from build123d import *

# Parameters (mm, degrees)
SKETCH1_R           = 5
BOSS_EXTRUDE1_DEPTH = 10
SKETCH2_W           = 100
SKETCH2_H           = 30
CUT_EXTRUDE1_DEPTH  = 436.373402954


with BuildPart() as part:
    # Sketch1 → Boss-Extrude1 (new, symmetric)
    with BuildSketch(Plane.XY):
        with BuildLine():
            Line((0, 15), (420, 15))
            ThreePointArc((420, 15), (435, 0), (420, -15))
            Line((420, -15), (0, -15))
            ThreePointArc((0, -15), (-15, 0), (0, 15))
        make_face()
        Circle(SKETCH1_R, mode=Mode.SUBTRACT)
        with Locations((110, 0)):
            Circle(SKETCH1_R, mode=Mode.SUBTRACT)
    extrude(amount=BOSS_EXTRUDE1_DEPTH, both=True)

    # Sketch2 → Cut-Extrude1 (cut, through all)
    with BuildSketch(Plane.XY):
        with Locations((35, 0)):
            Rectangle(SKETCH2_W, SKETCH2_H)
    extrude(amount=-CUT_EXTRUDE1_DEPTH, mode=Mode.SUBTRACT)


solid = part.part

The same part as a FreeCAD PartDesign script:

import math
import FreeCAD as App
import Part
import Sketcher

V = App.Vector


def add_polygon(sketch, points):
    """Adds a closed chain of lines whose ends are joined by coincident constraints."""
    first, n = sketch.GeometryCount, len(points)
    for a, b in zip(points, points[1:] + points[:1]):
        sketch.addGeometry(Part.LineSegment(App.Vector(*a, 0), App.Vector(*b, 0)), False)
    for i in range(n):
        sketch.addConstraint(Sketcher.Constraint("Coincident", first + i, 2, first + (i + 1) % n, 1))

doc = App.newDocument("Part")
body = doc.addObject("PartDesign::Body", "Body")

# Sketch on XY plane
sketch1 = body.newObject("Sketcher::SketchObject", "Sketch")
sketch1.AttachmentSupport = (doc.getObject("XY_Plane"), [""])
sketch1.MapMode = "FlatFace"
sketch1.addGeometry(Part.LineSegment(V(420, 15, 0), V(0, 15, 0)), False)
sketch1.addGeometry(Part.ArcOfCircle(Part.Circle(V(0, 0, 0), V(0, 0, 1), 15), math.radians(90), math.radians(270)), False)
sketch1.addGeometry(Part.LineSegment(V(0, -15, 0), V(420, -15, 0)), False)
sketch1.addGeometry(Part.ArcOfCircle(Part.Circle(V(420, 0, 0), V(0, 0, 1), 15), math.radians(-90), math.radians(90)), False)
sketch1.addGeometry(Part.Circle(V(110, 0, 0), V(0, 0, 1), 5), False)
sketch1.addGeometry(Part.Circle(V(0, 0, 0), V(0, 0, 1), 5), False)
sketch1.addConstraint(Sketcher.Constraint("Tangent", 0, 2, 1, 1))
sketch1.addConstraint(Sketcher.Constraint("Tangent", 1, 2, 2, 1))
sketch1.addConstraint(Sketcher.Constraint("Tangent", 2, 2, 3, 1))
sketch1.addConstraint(Sketcher.Constraint("Tangent", 3, 2, 0, 1))
sketch1.addConstraint(Sketcher.Constraint("Horizontal", 0))
sketch1.addConstraint(Sketcher.Constraint("Horizontal", 2))
sketch1.addConstraint(Sketcher.Constraint("Coincident", 1, 3, -1, 1))
sketch1.addConstraint(Sketcher.Constraint("Coincident", 5, 3, -1, 1))
sketch1.addConstraint(Sketcher.Constraint("Equal", 4, 5))
sketch1.addConstraint(Sketcher.Constraint("PointOnObject", 4, 3, -1))
sketch1.addConstraint(Sketcher.Constraint("Diameter", 4, 10.0))
sketch1.addConstraint(Sketcher.Constraint("Radius", 1, 15.0))
sketch1.addConstraint(Sketcher.Constraint("DistanceX", 0, 2, 0, 1, 420.0))
sketch1.addConstraint(Sketcher.Constraint("DistanceX", -1, 1, 4, 3, 110.0))
pad1 = body.newObject("PartDesign::Pad", "Pad")
pad1.Profile = sketch1
pad1.Length = 20
pad1.Midplane = True

# Sketch on XY plane
sketch2 = body.newObject("Sketcher::SketchObject", "Sketch001")
sketch2.AttachmentSupport = (doc.getObject("XY_Plane"), [""])
sketch2.MapMode = "FlatFace"
add_polygon(sketch2, [(-15, 15), (-15, -15), (85, -15), (85, 15)])  # lines 0-3
sketch2.addConstraint(Sketcher.Constraint("Vertical", 0))
sketch2.addConstraint(Sketcher.Constraint("Horizontal", 1))
sketch2.addConstraint(Sketcher.Constraint("Vertical", 2))
sketch2.addConstraint(Sketcher.Constraint("Horizontal", 3))
sketch2.addConstraint(Sketcher.Constraint("DistanceX", 1, 1, 1, 2, 100.0))
sketch2.addConstraint(Sketcher.Constraint("DistanceY", 0, 2, 0, 1, 30.0))
sketch2.addConstraint(Sketcher.Constraint("DistanceX", 0, 2, -1, 1, 15.0))
sketch2.addConstraint(Sketcher.Constraint("DistanceY", 0, 2, -1, 1, 15.0))
pocket1 = body.newObject("PartDesign::Pocket", "Pocket")
pocket1.Profile = sketch2
pocket1.Type = "ThroughAll"

doc.recompute()
